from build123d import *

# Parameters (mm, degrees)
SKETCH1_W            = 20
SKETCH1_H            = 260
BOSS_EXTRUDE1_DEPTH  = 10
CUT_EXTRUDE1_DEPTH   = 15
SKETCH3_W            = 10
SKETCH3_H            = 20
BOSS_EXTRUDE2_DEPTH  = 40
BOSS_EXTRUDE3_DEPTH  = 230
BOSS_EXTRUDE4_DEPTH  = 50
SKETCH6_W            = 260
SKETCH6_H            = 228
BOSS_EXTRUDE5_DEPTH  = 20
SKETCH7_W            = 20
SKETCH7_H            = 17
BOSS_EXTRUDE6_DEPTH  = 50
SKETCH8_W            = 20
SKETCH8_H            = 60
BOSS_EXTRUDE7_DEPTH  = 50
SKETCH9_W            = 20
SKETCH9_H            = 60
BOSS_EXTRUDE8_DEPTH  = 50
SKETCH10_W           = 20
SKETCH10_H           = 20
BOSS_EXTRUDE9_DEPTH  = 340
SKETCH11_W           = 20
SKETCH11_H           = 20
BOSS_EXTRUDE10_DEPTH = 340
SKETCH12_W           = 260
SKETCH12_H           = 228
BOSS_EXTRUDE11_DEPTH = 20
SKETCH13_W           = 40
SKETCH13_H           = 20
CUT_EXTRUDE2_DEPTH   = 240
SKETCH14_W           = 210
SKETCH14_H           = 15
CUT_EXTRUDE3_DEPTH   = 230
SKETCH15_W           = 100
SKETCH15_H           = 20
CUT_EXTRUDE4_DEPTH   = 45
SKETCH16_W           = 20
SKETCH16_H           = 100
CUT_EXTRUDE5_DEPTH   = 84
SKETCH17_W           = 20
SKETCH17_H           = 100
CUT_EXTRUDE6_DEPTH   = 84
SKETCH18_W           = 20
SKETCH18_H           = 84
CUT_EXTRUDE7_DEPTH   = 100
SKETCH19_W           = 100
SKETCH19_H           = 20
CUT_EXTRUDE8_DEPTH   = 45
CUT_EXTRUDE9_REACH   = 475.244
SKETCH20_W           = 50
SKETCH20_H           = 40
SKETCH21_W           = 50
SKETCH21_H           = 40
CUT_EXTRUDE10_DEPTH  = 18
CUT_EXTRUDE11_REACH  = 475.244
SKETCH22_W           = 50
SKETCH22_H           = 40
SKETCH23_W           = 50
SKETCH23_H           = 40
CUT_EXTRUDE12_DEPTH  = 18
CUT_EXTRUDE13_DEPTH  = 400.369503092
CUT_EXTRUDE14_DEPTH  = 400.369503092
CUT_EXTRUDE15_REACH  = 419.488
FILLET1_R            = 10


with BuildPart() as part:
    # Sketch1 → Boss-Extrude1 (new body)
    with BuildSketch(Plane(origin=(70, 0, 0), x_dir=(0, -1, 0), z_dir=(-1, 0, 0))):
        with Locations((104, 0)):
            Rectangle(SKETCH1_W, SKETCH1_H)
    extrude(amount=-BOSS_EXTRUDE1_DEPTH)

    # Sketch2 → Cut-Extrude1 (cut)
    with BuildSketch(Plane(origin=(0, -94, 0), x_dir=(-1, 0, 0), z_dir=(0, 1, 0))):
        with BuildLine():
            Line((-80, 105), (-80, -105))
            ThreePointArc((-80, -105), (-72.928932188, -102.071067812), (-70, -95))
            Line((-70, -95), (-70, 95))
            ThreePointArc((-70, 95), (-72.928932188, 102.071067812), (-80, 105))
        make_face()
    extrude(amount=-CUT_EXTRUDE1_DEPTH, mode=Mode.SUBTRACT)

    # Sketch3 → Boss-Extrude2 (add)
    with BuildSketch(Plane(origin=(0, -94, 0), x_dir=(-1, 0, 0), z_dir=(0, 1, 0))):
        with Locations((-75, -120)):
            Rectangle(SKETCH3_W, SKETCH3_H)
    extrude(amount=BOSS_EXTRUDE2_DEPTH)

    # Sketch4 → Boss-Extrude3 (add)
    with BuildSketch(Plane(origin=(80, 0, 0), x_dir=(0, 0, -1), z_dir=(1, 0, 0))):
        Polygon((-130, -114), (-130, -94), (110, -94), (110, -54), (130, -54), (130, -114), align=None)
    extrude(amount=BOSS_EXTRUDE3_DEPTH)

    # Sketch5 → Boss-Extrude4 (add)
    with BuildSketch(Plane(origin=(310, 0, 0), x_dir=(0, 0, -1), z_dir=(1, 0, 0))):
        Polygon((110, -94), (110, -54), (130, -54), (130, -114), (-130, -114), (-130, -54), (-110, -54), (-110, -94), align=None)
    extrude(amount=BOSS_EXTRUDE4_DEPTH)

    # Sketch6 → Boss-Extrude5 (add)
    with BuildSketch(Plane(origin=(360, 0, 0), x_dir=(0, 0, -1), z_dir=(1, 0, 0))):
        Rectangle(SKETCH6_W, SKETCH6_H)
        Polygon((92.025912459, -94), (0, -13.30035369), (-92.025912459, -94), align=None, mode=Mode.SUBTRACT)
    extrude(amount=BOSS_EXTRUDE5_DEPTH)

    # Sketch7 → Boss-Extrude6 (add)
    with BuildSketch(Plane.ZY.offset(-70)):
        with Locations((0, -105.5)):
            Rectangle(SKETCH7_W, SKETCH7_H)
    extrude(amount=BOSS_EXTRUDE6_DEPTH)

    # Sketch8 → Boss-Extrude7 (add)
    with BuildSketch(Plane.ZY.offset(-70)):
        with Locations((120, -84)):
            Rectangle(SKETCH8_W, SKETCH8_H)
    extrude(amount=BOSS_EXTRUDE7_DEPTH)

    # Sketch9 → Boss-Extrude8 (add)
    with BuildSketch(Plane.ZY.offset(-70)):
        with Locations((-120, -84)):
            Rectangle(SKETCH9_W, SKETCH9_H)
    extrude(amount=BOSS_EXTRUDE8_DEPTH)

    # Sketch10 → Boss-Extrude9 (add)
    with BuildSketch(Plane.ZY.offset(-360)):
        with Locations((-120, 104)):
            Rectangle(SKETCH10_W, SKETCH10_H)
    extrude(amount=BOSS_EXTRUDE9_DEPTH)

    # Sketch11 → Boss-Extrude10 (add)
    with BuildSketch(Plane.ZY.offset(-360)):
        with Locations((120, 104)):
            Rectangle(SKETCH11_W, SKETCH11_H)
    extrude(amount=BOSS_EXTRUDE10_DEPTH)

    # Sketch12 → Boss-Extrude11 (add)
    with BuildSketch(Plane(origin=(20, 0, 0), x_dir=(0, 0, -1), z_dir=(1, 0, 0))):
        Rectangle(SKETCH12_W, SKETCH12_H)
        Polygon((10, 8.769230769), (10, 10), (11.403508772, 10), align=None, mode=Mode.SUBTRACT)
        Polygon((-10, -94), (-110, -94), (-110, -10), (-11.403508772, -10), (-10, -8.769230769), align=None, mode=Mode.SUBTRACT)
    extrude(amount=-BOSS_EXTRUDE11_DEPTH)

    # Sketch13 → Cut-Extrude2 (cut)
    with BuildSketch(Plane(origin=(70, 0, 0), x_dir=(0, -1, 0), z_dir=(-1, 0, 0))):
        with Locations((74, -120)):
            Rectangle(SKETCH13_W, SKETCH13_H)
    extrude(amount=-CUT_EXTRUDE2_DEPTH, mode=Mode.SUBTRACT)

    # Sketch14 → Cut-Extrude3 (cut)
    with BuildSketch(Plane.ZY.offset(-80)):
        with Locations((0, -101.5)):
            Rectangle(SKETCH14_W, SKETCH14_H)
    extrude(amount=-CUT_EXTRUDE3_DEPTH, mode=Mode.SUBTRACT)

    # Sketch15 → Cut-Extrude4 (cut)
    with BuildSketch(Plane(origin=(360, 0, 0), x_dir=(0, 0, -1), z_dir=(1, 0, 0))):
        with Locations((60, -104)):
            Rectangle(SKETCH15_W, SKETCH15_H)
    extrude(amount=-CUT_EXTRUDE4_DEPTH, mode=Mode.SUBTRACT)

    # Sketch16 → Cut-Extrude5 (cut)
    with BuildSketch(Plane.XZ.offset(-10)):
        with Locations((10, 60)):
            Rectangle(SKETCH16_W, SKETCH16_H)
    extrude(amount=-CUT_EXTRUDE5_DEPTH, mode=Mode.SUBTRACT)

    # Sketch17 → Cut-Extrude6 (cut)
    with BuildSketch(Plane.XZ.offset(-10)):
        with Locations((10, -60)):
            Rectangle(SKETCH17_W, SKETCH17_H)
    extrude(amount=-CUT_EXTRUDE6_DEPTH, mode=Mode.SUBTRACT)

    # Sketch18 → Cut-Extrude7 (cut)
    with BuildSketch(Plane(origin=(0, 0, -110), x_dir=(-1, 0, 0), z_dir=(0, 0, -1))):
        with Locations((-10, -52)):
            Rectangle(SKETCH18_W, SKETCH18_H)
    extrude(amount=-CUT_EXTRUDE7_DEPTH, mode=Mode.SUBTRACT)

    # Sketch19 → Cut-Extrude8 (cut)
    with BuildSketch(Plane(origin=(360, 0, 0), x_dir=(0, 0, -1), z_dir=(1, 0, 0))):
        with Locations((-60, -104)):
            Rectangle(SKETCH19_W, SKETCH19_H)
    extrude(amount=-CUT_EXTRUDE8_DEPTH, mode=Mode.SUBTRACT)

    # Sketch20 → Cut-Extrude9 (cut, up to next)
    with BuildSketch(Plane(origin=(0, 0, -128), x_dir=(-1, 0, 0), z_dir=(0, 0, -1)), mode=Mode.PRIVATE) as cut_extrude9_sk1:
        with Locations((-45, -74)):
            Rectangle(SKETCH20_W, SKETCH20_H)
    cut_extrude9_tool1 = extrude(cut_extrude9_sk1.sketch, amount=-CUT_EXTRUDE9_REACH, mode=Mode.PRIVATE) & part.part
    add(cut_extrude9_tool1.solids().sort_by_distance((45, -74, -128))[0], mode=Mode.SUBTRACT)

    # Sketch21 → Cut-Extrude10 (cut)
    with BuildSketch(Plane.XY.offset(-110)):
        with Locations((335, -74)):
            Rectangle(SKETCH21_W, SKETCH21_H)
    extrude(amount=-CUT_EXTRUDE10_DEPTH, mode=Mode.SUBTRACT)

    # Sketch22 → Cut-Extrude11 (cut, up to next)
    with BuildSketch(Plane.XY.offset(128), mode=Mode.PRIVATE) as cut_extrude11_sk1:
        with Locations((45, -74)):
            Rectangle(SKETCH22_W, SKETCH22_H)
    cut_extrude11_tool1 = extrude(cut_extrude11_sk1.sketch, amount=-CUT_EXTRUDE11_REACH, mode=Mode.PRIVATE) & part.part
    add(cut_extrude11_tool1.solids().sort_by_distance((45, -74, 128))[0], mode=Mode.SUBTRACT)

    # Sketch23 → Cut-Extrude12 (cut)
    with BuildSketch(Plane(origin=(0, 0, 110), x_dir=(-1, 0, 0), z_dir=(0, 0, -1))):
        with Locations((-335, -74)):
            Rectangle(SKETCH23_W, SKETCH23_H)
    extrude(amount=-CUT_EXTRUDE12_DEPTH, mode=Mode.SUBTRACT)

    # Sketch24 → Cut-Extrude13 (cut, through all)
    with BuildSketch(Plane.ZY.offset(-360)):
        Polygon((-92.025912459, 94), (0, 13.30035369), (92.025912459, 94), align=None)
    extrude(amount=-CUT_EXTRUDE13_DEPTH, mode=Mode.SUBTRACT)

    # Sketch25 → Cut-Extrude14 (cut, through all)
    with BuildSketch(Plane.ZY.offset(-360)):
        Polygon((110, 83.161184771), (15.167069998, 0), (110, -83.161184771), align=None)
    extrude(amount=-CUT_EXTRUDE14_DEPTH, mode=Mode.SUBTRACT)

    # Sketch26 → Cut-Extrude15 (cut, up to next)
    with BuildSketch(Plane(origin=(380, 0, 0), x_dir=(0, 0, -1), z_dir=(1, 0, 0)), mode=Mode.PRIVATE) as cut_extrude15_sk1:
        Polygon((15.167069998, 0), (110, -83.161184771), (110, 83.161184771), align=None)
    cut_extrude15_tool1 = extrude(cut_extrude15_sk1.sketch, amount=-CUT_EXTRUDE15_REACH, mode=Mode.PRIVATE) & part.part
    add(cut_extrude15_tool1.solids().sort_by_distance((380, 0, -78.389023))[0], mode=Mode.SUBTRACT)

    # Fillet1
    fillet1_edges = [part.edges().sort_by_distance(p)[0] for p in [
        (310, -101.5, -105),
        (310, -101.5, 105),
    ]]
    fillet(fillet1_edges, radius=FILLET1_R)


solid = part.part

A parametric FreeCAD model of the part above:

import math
import FreeCAD as App
import Part
import Sketcher

V = App.Vector


def edges_at(feature, points):
    """Names of the edges that pass closest to the given points."""
    edges = feature.Shape.Edges
    near = lambda p: min(range(len(edges)), key=lambda i: edges[i].distToShape(Part.Vertex(*p))[0])
    return sorted({f"Edge{near(p) + 1}" for p in points})


def add_polygon(sketch, points):
    """Adds a closed chain of lines whose ends are joined by coincident constraints."""
    first, n = sketch.GeometryCount, len(points)
    for a, b in zip(points, points[1:] + points[:1]):
        sketch.addGeometry(Part.LineSegment(App.Vector(*a, 0), App.Vector(*b, 0)), False)
    for i in range(n):
        sketch.addConstraint(Sketcher.Constraint("Coincident", first + i, 2, first + (i + 1) % n, 1))

doc = App.newDocument("Part")
body = doc.addObject("PartDesign::Body", "Body")

sketch1 = body.newObject("Sketcher::SketchObject", "Sketch")
sketch1.AttachmentSupport = (doc.getObject("YZ_Plane"), [""])
sketch1.MapMode = "FlatFace"
sketch1.AttachmentOffset = App.Placement(V(0, 0, 70), App.Rotation())
add_polygon(sketch1, [(-94, 130), (-94, -130), (-114, -130), (-114, 130)])
sketch1.addConstraint(Sketcher.Constraint("Vertical", 0))
sketch1.addConstraint(Sketcher.Constraint("Horizontal", 1))
sketch1.addConstraint(Sketcher.Constraint("Vertical", 2))
sketch1.addConstraint(Sketcher.Constraint("Horizontal", 3))
sketch1.addConstraint(Sketcher.Constraint("DistanceX", 1, 2, 1, 1, 20.0))
sketch1.addConstraint(Sketcher.Constraint("DistanceY", 0, 2, 0, 1, 260.0))
sketch1.addConstraint(Sketcher.Constraint("DistanceX", 0, 2, -1, 1, 94.0))
sketch1.addConstraint(Sketcher.Constraint("DistanceY", 0, 2, -1, 1, 130.0))
pad1 = body.newObject("PartDesign::Pad", "Pad")
pad1.Profile = sketch1
pad1.Length = 10

sketch2 = body.newObject("Sketcher::SketchObject", "Sketch001")
sketch2.AttachmentSupport = (doc.getObject("XZ_Plane"), [""])
sketch2.MapMode = "FlatFace"
sketch2.AttachmentOffset = App.Placement(V(0, 0, 94), App.Rotation())
sketch2.addGeometry(Part.LineSegment(V(80, 105, 0), V(80, -105, 0)), False)
sketch2.addGeometry(Part.ArcOfCircle(Part.Circle(V(80, -95, 0), V(0, 0, 1), 10), math.radians(180), math.radians(270)), False)
sketch2.addGeometry(Part.LineSegment(V(70, -95, 0), V(70, 95, 0)), False)
sketch2.addGeometry(Part.ArcOfCircle(Part.Circle(V(80, 95, 0), V(0, 0, 1), 10), math.radians(90), math.radians(180)), False)
sketch2.addConstraint(Sketcher.Constraint("Coincident", 0, 2, 1, 2))
sketch2.addConstraint(Sketcher.Constraint("Tangent", 1, 1, 2, 1))
sketch2.addConstraint(Sketcher.Constraint("Tangent", 2, 2, 3, 2))
sketch2.addConstraint(Sketcher.Constraint("Coincident", 3, 1, 0, 1))
sketch2.addConstraint(Sketcher.Constraint("Vertical", 0))
sketch2.addConstraint(Sketcher.Constraint("Vertical", 2))
sketch2.addConstraint(Sketcher.Constraint("Equal", 1, 3))
sketch2.addConstraint(Sketcher.Constraint("Vertical", 3, 3, 0, 2))
sketch2.addConstraint(Sketcher.Constraint("Radius", 1, 10.0))
sketch2.addConstraint(Sketcher.Constraint("DistanceY", 0, 2, 0, 1, 210.0))
sketch2.addConstraint(Sketcher.Constraint("DistanceX", -1, 1, 1, 3, 80.0))
sketch2.addConstraint(Sketcher.Constraint("DistanceY", 1, 3, -1, 1, 95.0))
pocket1 = body.newObject("PartDesign::Pocket", "Pocket")
pocket1.Profile = sketch2
pocket1.Length = 15
pocket1.Reversed = True

sketch3 = body.newObject("Sketcher::SketchObject", "Sketch002")
sketch3.AttachmentSupport = (doc.getObject("XZ_Plane"), [""])
sketch3.MapMode = "FlatFace"
sketch3.AttachmentOffset = App.Placement(V(0, 0, 94), App.Rotation())
add_polygon(sketch3, [(80, -110), (80, -130), (70, -130), (70, -110)])
sketch3.addConstraint(Sketcher.Constraint("Vertical", 0))
sketch3.addConstraint(Sketcher.Constraint("Horizontal", 1))
sketch3.addConstraint(Sketcher.Constraint("Vertical", 2))
sketch3.addConstraint(Sketcher.Constraint("Horizontal", 3))
sketch3.addConstraint(Sketcher.Constraint("DistanceX", 1, 2, 1, 1, 10.0))
sketch3.addConstraint(Sketcher.Constraint("DistanceY", 0, 2, 0, 1, 20.0))
sketch3.addConstraint(Sketcher.Constraint("DistanceX", -1, 1, 0, 2, 80.0))
sketch3.addConstraint(Sketcher.Constraint("DistanceY", 0, 2, -1, 1, 130.0))
pad2 = body.newObject("PartDesign::Pad", "Pad001")
pad2.Profile = sketch3
pad2.Length = 40
pad2.Reversed = True

sketch4 = body.newObject("Sketcher::SketchObject", "Sketch003")
sketch4.AttachmentSupport = (doc.getObject("YZ_Plane"), [""])
sketch4.MapMode = "FlatFace"
sketch4.AttachmentOffset = App.Placement(V(0, 0, 80), App.Rotation())
add_polygon(sketch4, [(-94, 130), (-114, 130), (-114, -130), (-54, -130), (-54, -110), (-94, -110)])
sketch4.addConstraint(Sketcher.Constraint("Horizontal", 0))
sketch4.addConstraint(Sketcher.Constraint("Vertical", 1))
sketch4.addConstraint(Sketcher.Constraint("Horizontal", 2))
sketch4.addConstraint(Sketcher.Constraint("Vertical", 3))
sketch4.addConstraint(Sketcher.Constraint("Horizontal", 4))
sketch4.addConstraint(Sketcher.Constraint("Vertical", 5))
sketch4.addConstraint(Sketcher.Constraint("Equal", 0, 3))
sketch4.addConstraint(Sketcher.Constraint("DistanceX", 0, 2, 0, 1, 20.0))
sketch4.addConstraint(Sketcher.Constraint("DistanceX", 2, 1, 2, 2, 60.0))
sketch4.addConstraint(Sketcher.Constraint("DistanceY", 1, 2, 1, 1, 260.0))
sketch4.addConstraint(Sketcher.Constraint("DistanceX", 0, 2, -1, 1, 114.0))
sketch4.addConstraint(Sketcher.Constraint("DistanceY", -1, 1, 0, 2, 130.0))
pad3 = body.newObject("PartDesign::Pad", "Pad002")
pad3.Profile = sketch4
pad3.Length = 230

sketch5 = body.newObject("Sketcher::SketchObject", "Sketch004")
sketch5.AttachmentSupport = (doc.getObject("YZ_Plane"), [""])
sketch5.MapMode = "FlatFace"
sketch5.AttachmentOffset = App.Placement(V(0, 0, 310), App.Rotation())
add_polygon(sketch5, [(-54, -110), (-94, -110), (-94, 110), (-54, 110), (-54, 130), (-114, 130), (-114, -130), (-54, -130)])
sketch5.addConstraint(Sketcher.Constraint("Horizontal", 0))
sketch5.addConstraint(Sketcher.Constraint("Vertical", 1))
sketch5.addConstraint(Sketcher.Constraint("Horizontal", 2))
sketch5.addConstraint(Sketcher.Constraint("Vertical", 3))
sketch5.addConstraint(Sketcher.Constraint("Horizontal", 4))
sketch5.addConstraint(Sketcher.Constraint("Vertical", 5))
sketch5.addConstraint(Sketcher.Constraint("Horizontal", 6))
sketch5.addConstraint(Sketcher.Constraint("Vertical", 7))
sketch5.addConstraint(Sketcher.Constraint("Symmetric", 3, 2, 6, 2, -1))
sketch5.addConstraint(Sketcher.Constraint("Equal", 3, 7))
sketch5.addConstraint(Sketcher.Constraint("DistanceX", 0, 2, 0, 1, 40.0))
sketch5.addConstraint(Sketcher.Constraint("DistanceX", 4, 2, 4, 1, 60.0))
sketch5.addConstraint(Sketcher.Constraint("DistanceY", 1, 1, 1, 2, 220.0))
sketch5.addConstraint(Sketcher.Constraint("DistanceY", 3, 1, 3, 2, 20.0))
sketch5.addConstraint(Sketcher.Constraint("DistanceX", 0, 2, -1, 1, 94.0))
pad4 = body.newObject("PartDesign::Pad", "Pad003")
pad4.Profile = sketch5
pad4.Length = 50

sketch6 = body.newObject("Sketcher::SketchObject", "Sketch005")
sketch6.AttachmentSupport = (doc.getObject("YZ_Plane"), [""])
sketch6.MapMode = "FlatFace"
sketch6.AttachmentOffset = App.Placement(V(0, 0, 360), App.Rotation())
add_polygon(sketch6, [(114, 130), (-114, 130), (-114, -130), (114, -130)])
add_polygon(sketch6, [(-13, 0), (-94, -92), (-94, 92)])
sketch6.addConstraint(Sketcher.Constraint("Horizontal", 0))
sketch6.addConstraint(Sketcher.Constraint("Vertical", 1))
sketch6.addConstraint(Sketcher.Constraint("Horizontal", 2))
sketch6.addConstraint(Sketcher.Constraint("Vertical", 3))
sketch6.addConstraint(Sketcher.Constraint("Vertical", 5))
sketch6.addConstraint(Sketcher.Constraint("Symmetric", 0, 2, 2, 2, -1, 1))
sketch6.addConstraint(Sketcher.Constraint("PointOnObject", 6, 2, -1))
sketch6.addConstraint(Sketcher.Constraint("Equal", 4, 6))
sketch6.addConstraint(Sketcher.Constraint("DistanceX", 0, 2, 0, 1, 228.0))
sketch6.addConstraint(Sketcher.Constraint("DistanceY", 1, 2, 1, 1, 260.0))
sketch6.addConstraint(Sketcher.Constraint("DistanceX", 4, 2, -1, 1, 94.0))
sketch6.addConstraint(Sketcher.Constraint("Distance", 4, 122.397718))
sketch6.addConstraint(Sketcher.Constraint("DistanceY", 5, 1, 5, 2, 184.051825))
pad5 = body.newObject("PartDesign::Pad", "Pad004")
pad5.Profile = sketch6
pad5.Length = 20

sketch7 = body.newObject("Sketcher::SketchObject", "Sketch006")
sketch7.AttachmentSupport = (doc.getObject("YZ_Plane"), [""])
sketch7.MapMode = "FlatFace"
sketch7.AttachmentOffset = App.Placement(V(0, 0, 70), App.Rotation())
add_polygon(sketch7, [(-97, -10), (-114, -10), (-114, 10), (-97, 10)])
sketch7.addConstraint(Sketcher.Constraint("Horizontal", 0))
sketch7.addConstraint(Sketcher.Constraint("Vertical", 1))
sketch7.addConstraint(Sketcher.Constraint("Horizontal", 2))
sketch7.addConstraint(Sketcher.Constraint("Vertical", 3))
sketch7.addConstraint(Sketcher.Constraint("DistanceX", 0, 2, 0, 1, 17.0))
sketch7.addConstraint(Sketcher.Constraint("DistanceY", 1, 1, 1, 2, 20.0))
sketch7.addConstraint(Sketcher.Constraint("DistanceX", 0, 2, -1, 1, 114.0))
sketch7.addConstraint(Sketcher.Constraint("DistanceY", 0, 2, -1, 1, 10.0))
pad6 = body.newObject("PartDesign::Pad", "Pad005")
pad6.Profile = sketch7
pad6.Length = 50
pad6.Reversed = True

sketch8 = body.newObject("Sketcher::SketchObject", "Sketch007")
sketch8.AttachmentSupport = (doc.getObject("YZ_Plane"), [""])
sketch8.MapMode = "FlatFace"
sketch8.AttachmentOffset = App.Placement(V(0, 0, 70), App.Rotation())
add_polygon(sketch8, [(-54, 110), (-114, 110), (-114, 130), (-54, 130)])
sketch8.addConstraint(Sketcher.Constraint("Horizontal", 0))
sketch8.addConstraint(Sketcher.Constraint("Vertical", 1))
sketch8.addConstraint(Sketcher.Constraint("Horizontal", 2))
sketch8.addConstraint(Sketcher.Constraint("Vertical", 3))
sketch8.addConstraint(Sketcher.Constraint("DistanceX", 0, 2, 0, 1, 60.0))
sketch8.addConstraint(Sketcher.Constraint("DistanceY", 1, 1, 1, 2, 20.0))
sketch8.addConstraint(Sketcher.Constraint("DistanceX", 0, 2, -1, 1, 114.0))
sketch8.addConstraint(Sketcher.Constraint("DistanceY", -1, 1, 0, 2, 110.0))
pad7 = body.newObject("PartDesign::Pad", "Pad006")
pad7.Profile = sketch8
pad7.Length = 50
pad7.Reversed = True

sketch9 = body.newObject("Sketcher::SketchObject", "Sketch008")
sketch9.AttachmentSupport = (doc.getObject("YZ_Plane"), [""])
sketch9.MapMode = "FlatFace"
sketch9.AttachmentOffset = App.Placement(V(0, 0, 70), App.Rotation())
add_polygon(sketch9, [(-54, -130), (-114, -130), (-114, -110), (-54, -110)])
sketch9.addConstraint(Sketcher.Constraint("Horizontal", 0))
sketch9.addConstraint(Sketcher.Constraint("Vertical", 1))
sketch9.addConstraint(Sketcher.Constraint("Horizontal", 2))
sketch9.addConstraint(Sketcher.Constraint("Vertical", 3))
sketch9.addConstraint(Sketcher.Constraint("DistanceX", 0, 2, 0, 1, 60.0))
sketch9.addConstraint(Sketcher.Constraint("DistanceY", 1, 1, 1, 2, 20.0))
sketch9.addConstraint(Sketcher.Constraint("DistanceX", 0, 2, -1, 1, 114.0))
sketch9.addConstraint(Sketcher.Constraint("DistanceY", 0, 2, -1, 1, 130.0))
pad8 = body.newObject("PartDesign::Pad", "Pad007")
pad8.Profile = sketch9
pad8.Length = 50
pad8.Reversed = True

sketch10 = body.newObject("Sketcher::SketchObject", "Sketch009")
sketch10.AttachmentSupport = (doc.getObject("YZ_Plane"), [""])
sketch10.MapMode = "FlatFace"
sketch10.AttachmentOffset = App.Placement(V(0, 0, 360), App.Rotation())
add_polygon(sketch10, [(114, -130), (94, -130), (94, -110), (114, -110)])
sketch10.addConstraint(Sketcher.Constraint("Horizontal", 0))
sketch10.addConstraint(Sketcher.Constraint("Vertical", 1))
sketch10.addConstraint(Sketcher.Constraint("Horizontal", 2))
sketch10.addConstraint(Sketcher.Constraint("Vertical", 3))
sketch10.addConstraint(Sketcher.Constraint("Equal", 2, 1))
sketch10.addConstraint(Sketcher.Constraint("DistanceX", 0, 2, 0, 1, 20.0))
sketch10.addConstraint(Sketcher.Constraint("DistanceX", -1, 1, 0, 2, 94.0))
sketch10.addConstraint(Sketcher.Constraint("DistanceY", 0, 2, -1, 1, 130.0))
pad9 = body.newObject("PartDesign::Pad", "Pad008")
pad9.Profile = sketch10
pad9.Length = 340
pad9.Reversed = True

sketch11 = body.newObject("Sketcher::SketchObject", "Sketch010")
sketch11.AttachmentSupport = (doc.getObject("YZ_Plane"), [""])
sketch11.MapMode = "FlatFace"
sketch11.AttachmentOffset = App.Placement(V(0, 0, 360), App.Rotation())
add_polygon(sketch11, [(114, 110), (94, 110), (94, 130), (114, 130)])
sketch11.addConstraint(Sketcher.Constraint("Horizontal", 0))
sketch11.addConstraint(Sketcher.Constraint("Vertical", 1))
sketch11.addConstraint(Sketcher.Constraint("Horizontal", 2))
sketch11.addConstraint(Sketcher.Constraint("Vertical", 3))
sketch11.addConstraint(Sketcher.Constraint("Equal", 2, 1))
sketch11.addConstraint(Sketcher.Constraint("DistanceX", 0, 2, 0, 1, 20.0))
sketch11.addConstraint(Sketcher.Constraint("DistanceX", -1, 1, 0, 2, 94.0))
sketch11.addConstraint(Sketcher.Constraint("DistanceY", -1, 1, 0, 2, 110.0))
pad10 = body.newObject("PartDesign::Pad", "Pad009")
pad10.Profile = sketch11
pad10.Length = 340
pad10.Reversed = True

sketch12 = body.newObject("Sketcher::SketchObject", "Sketch011")
sketch12.AttachmentSupport = (doc.getObject("YZ_Plane"), [""])
sketch12.MapMode = "FlatFace"
sketch12.AttachmentOffset = App.Placement(V(0, 0, 20), App.Rotation())
add_polygon(sketch12, [(114, 130), (-114, 130), (-114, -130), (114, -130)])
add_polygon(sketch12, [(-8.8, 10), (-94, 10), (-94, 110), (-10, 110), (-10, 11.4)])
add_polygon(sketch12, [(10, -11.4), (8.8, -10), (10, -10)])
sketch12.addConstraint(Sketcher.Constraint("Horizontal", 0))
sketch12.addConstraint(Sketcher.Constraint("Vertical", 1))
sketch12.addConstraint(Sketcher.Constraint("Horizontal", 2))
sketch12.addConstraint(Sketcher.Constraint("Vertical", 3))
sketch12.addConstraint(Sketcher.Constraint("Horizontal", 4))
sketch12.addConstraint(Sketcher.Constraint("Vertical", 5))
sketch12.addConstraint(Sketcher.Constraint("Horizontal", 6))
sketch12.addConstraint(Sketcher.Constraint("Vertical", 7))
sketch12.addConstraint(Sketcher.Constraint("Horizontal", 10))
sketch12.addConstraint(Sketcher.Constraint("Vertical", 11))
sketch12.addConstraint(Sketcher.Constraint("Symmetric", 0, 2, 2, 2, -1, 1))
sketch12.addConstraint(Sketcher.Constraint("Symmetric", 8, 2, 9, 2, -1, 1))
sketch12.addConstraint(Sketcher.Constraint("Symmetric", 7, 2, 11, 2, -1, 1))
sketch12.addConstraint(Sketcher.Constraint("DistanceX", 0, 2, 0, 1, 228.0))
sketch12.addConstraint(Sketcher.Constraint("DistanceX", 6, 1, 6, 2, 84.0))
sketch12.addConstraint(Sketcher.Constraint("DistanceY", 1, 2, 1, 1, 260.0))
sketch12.addConstraint(Sketcher.Constraint("DistanceY", 5, 1, 5, 2, 100.0))
sketch12.addConstraint(Sketcher.Constraint("DistanceX", 4, 2, -1, 1, 94.0))
sketch12.addConstraint(Sketcher.Constraint("DistanceY", -1, 1, 4, 2, 10.0))
sketch12.addConstraint(Sketcher.Constraint("DistanceX", 4, 2, 4, 1, 85.230769))
sketch12.addConstraint(Sketcher.Constraint("DistanceY", 7, 2, 7, 1, 98.596491))
pad11 = body.newObject("PartDesign::Pad", "Pad010")
pad11.Profile = sketch12
pad11.Length = 20
pad11.Reversed = True

sketch13 = body.newObject("Sketcher::SketchObject", "Sketch012")
sketch13.AttachmentSupport = (doc.getObject("YZ_Plane"), [""])
sketch13.MapMode = "FlatFace"
sketch13.AttachmentOffset = App.Placement(V(0, 0, 70), App.Rotation())
add_polygon(sketch13, [(-54, -110), (-54, -130), (-94, -130), (-94, -110)])
sketch13.addConstraint(Sketcher.Constraint("Vertical", 0))
sketch13.addConstraint(Sketcher.Constraint("Horizontal", 1))
sketch13.addConstraint(Sketcher.Constraint("Vertical", 2))
sketch13.addConstraint(Sketcher.Constraint("Horizontal", 3))
sketch13.addConstraint(Sketcher.Constraint("DistanceX", 1, 2, 1, 1, 40.0))
sketch13.addConstraint(Sketcher.Constraint("DistanceY", 0, 2, 0, 1, 20.0))
sketch13.addConstraint(Sketcher.Constraint("DistanceX", 0, 2, -1, 1, 54.0))
sketch13.addConstraint(Sketcher.Constraint("DistanceY", 0, 2, -1, 1, 130.0))
pocket2 = body.newObject("PartDesign::Pocket", "Pocket001")
pocket2.Profile = sketch13
pocket2.Length = 240
pocket2.Reversed = True

sketch14 = body.newObject("Sketcher::SketchObject", "Sketch013")
sketch14.AttachmentSupport = (doc.getObject("YZ_Plane"), [""])
sketch14.MapMode = "FlatFace"
sketch14.AttachmentOffset = App.Placement(V(0, 0, 80), App.Rotation())
add_polygon(sketch14, [(-94, -105), (-109, -105), (-109, 105), (-94, 105)])
sketch14.addConstraint(Sketcher.Constraint("Horizontal", 0))
sketch14.addConstraint(Sketcher.Constraint("Vertical", 1))
sketch14.addConstraint(Sketcher.Constraint("Horizontal", 2))
sketch14.addConstraint(Sketcher.Constraint("Vertical", 3))
sketch14.addConstraint(Sketcher.Constraint("DistanceX", 0, 2, 0, 1, 15.0))
sketch14.addConstraint(Sketcher.Constraint("DistanceY", 1, 1, 1, 2, 210.0))
sketch14.addConstraint(Sketcher.Constraint("DistanceX", 0, 2, -1, 1, 109.0))
sketch14.addConstraint(Sketcher.Constraint("DistanceY", 0, 2, -1, 1, 105.0))
pocket3 = body.newObject("PartDesign::Pocket", "Pocket002")
pocket3.Profile = sketch14
pocket3.Length = 230
pocket3.Reversed = True

sketch15 = body.newObject("Sketcher::SketchObject", "Sketch014")
sketch15.AttachmentSupport = (doc.getObject("YZ_Plane"), [""])
sketch15.MapMode = "FlatFace"
sketch15.AttachmentOffset = App.Placement(V(0, 0, 360), App.Rotation())
add_polygon(sketch15, [(-94, -10), (-114, -10), (-114, -110), (-94, -110)])
sketch15.addConstraint(Sketcher.Constraint("Horizontal", 0))
sketch15.addConstraint(Sketcher.Constraint("Vertical", 1))
sketch15.addConstraint(Sketcher.Constraint("Horizontal", 2))
sketch15.addConstraint(Sketcher.Constraint("Vertical", 3))
sketch15.addConstraint(Sketcher.Constraint("DistanceX", 0, 2, 0, 1, 20.0))
sketch15.addConstraint(Sketcher.Constraint("DistanceY", 1, 2, 1, 1, 100.0))
sketch15.addConstraint(Sketcher.Constraint("DistanceX", 0, 2, -1, 1, 114.0))
sketch15.addConstraint(Sketcher.Constraint("DistanceY", 0, 2, -1, 1, 10.0))
pocket4 = body.newObject("PartDesign::Pocket", "Pocket003")
pocket4.Profile = sketch15
pocket4.Length = 45

sketch16 = body.newObject("Sketcher::SketchObject", "Sketch015")
sketch16.AttachmentSupport = (doc.getObject("XZ_Plane"), [""])
sketch16.MapMode = "FlatFace"
sketch16.AttachmentOffset = App.Placement(V(0, 0, -10), App.Rotation())
add_polygon(sketch16, [(0, 110), (0, 10), (20, 10), (20, 110)])
sketch16.addConstraint(Sketcher.Constraint("Vertical", 0))
sketch16.addConstraint(Sketcher.Constraint("Horizontal", 1))
sketch16.addConstraint(Sketcher.Constraint("Vertical", 2))
sketch16.addConstraint(Sketcher.Constraint("Horizontal", 3))
sketch16.addConstraint(Sketcher.Constraint("PointOnObject", 0, 2, -2))
sketch16.addConstraint(Sketcher.Constraint("DistanceX", 1, 1, 1, 2, 20.0))
sketch16.addConstraint(Sketcher.Constraint("DistanceY", 0, 2, 0, 1, 100.0))
sketch16.addConstraint(Sketcher.Constraint("DistanceY", -1, 1, 0, 2, 10.0))
pocket5 = body.newObject("PartDesign::Pocket", "Pocket004")
pocket5.Profile = sketch16
pocket5.Length = 84

sketch17 = body.newObject("Sketcher::SketchObject", "Sketch016")
sketch17.AttachmentSupport = (doc.getObject("XZ_Plane"), [""])
sketch17.MapMode = "FlatFace"
sketch17.AttachmentOffset = App.Placement(V(0, 0, -10), App.Rotation())
add_polygon(sketch17, [(0, -10), (0, -110), (20, -110), (20, -10)])
sketch17.addConstraint(Sketcher.Constraint("Vertical", 0))
sketch17.addConstraint(Sketcher.Constraint("Horizontal", 1))
sketch17.addConstraint(Sketcher.Constraint("Vertical", 2))
sketch17.addConstraint(Sketcher.Constraint("Horizontal", 3))
sketch17.addConstraint(Sketcher.Constraint("PointOnObject", 0, 2, -2))
sketch17.addConstraint(Sketcher.Constraint("DistanceX", 1, 1, 1, 2, 20.0))
sketch17.addConstraint(Sketcher.Constraint("DistanceY", 0, 2, 0, 1, 100.0))
sketch17.addConstraint(Sketcher.Constraint("DistanceY", 0, 2, -1, 1, 110.0))
pocket6 = body.newObject("PartDesign::Pocket", "Pocket005")
pocket6.Profile = sketch17
pocket6.Length = 84

sketch18 = body.newObject("Sketcher::SketchObject", "Sketch017")
sketch18.AttachmentSupport = (doc.getObject("XY_Plane"), [""])
sketch18.MapMode = "FlatFace"
sketch18.AttachmentOffset = App.Placement(V(0, 0, -110), App.Rotation())
add_polygon(sketch18, [(20, -10), (20, -94), (0, -94), (0, -10)])
sketch18.addConstraint(Sketcher.Constraint("Vertical", 0))
sketch18.addConstraint(Sketcher.Constraint("Horizontal", 1))
sketch18.addConstraint(Sketcher.Constraint("Vertical", 2))
sketch18.addConstraint(Sketcher.Constraint("Horizontal", 3))
sketch18.addConstraint(Sketcher.Constraint("PointOnObject", 1, 2, -2))
sketch18.addConstraint(Sketcher.Constraint("DistanceX", 1, 2, 1, 1, 20.0))
sketch18.addConstraint(Sketcher.Constraint("DistanceY", 0, 2, 0, 1, 84.0))
sketch18.addConstraint(Sketcher.Constraint("DistanceY", 0, 2, -1, 1, 94.0))
pocket7 = body.newObject("PartDesign::Pocket", "Pocket006")
pocket7.Profile = sketch18
pocket7.Length = 100
pocket7.Reversed = True

sketch19 = body.newObject("Sketcher::SketchObject", "Sketch018")
sketch19.AttachmentSupport = (doc.getObject("YZ_Plane"), [""])
sketch19.MapMode = "FlatFace"
sketch19.AttachmentOffset = App.Placement(V(0, 0, 360), App.Rotation())
add_polygon(sketch19, [(-94, 110), (-114, 110), (-114, 10), (-94, 10)])
sketch19.addConstraint(Sketcher.Constraint("Horizontal", 0))
sketch19.addConstraint(Sketcher.Constraint("Vertical", 1))
sketch19.addConstraint(Sketcher.Constraint("Horizontal", 2))
sketch19.addConstraint(Sketcher.Constraint("Vertical", 3))
sketch19.addConstraint(Sketcher.Constraint("DistanceX", 0, 2, 0, 1, 20.0))
sketch19.addConstraint(Sketcher.Constraint("DistanceY", 1, 2, 1, 1, 100.0))
sketch19.addConstraint(Sketcher.Constraint("DistanceX", 0, 2, -1, 1, 114.0))
sketch19.addConstraint(Sketcher.Constraint("DistanceY", -1, 1, 0, 2, 110.0))
pocket8 = body.newObject("PartDesign::Pocket", "Pocket007")
pocket8.Profile = sketch19
pocket8.Length = 45

sketch20 = body.newObject("Sketcher::SketchObject", "Sketch019")
sketch20.AttachmentSupport = (doc.getObject("XY_Plane"), [""])
sketch20.MapMode = "FlatFace"
sketch20.AttachmentOffset = App.Placement(V(0, 0, -128), App.Rotation())
add_polygon(sketch20, [(70, -54), (70, -94), (20, -94), (20, -54)])
sketch20.addConstraint(Sketcher.Constraint("Vertical", 0))
sketch20.addConstraint(Sketcher.Constraint("Horizontal", 1))
sketch20.addConstraint(Sketcher.Constraint("Vertical", 2))
sketch20.addConstraint(Sketcher.Constraint("Horizontal", 3))
sketch20.addConstraint(Sketcher.Constraint("DistanceX", 1, 2, 1, 1, 50.0))
sketch20.addConstraint(Sketcher.Constraint("DistanceY", 0, 2, 0, 1, 40.0))
sketch20.addConstraint(Sketcher.Constraint("DistanceX", -1, 1, 0, 2, 70.0))
sketch20.addConstraint(Sketcher.Constraint("DistanceY", 0, 2, -1, 1, 94.0))
pocket9 = body.newObject("PartDesign::Pocket", "Pocket008")
pocket9.Profile = sketch20
pocket9.Type = "UpToFirst"
pocket9.Reversed = True

sketch21 = body.newObject("Sketcher::SketchObject", "Sketch020")
sketch21.AttachmentSupport = (doc.getObject("XY_Plane"), [""])
sketch21.MapMode = "FlatFace"
sketch21.AttachmentOffset = App.Placement(V(0, 0, -110), App.Rotation())
add_polygon(sketch21, [(310, -54), (310, -94), (360, -94), (360, -54)])
sketch21.addConstraint(Sketcher.Constraint("Vertical", 0))
sketch21.addConstraint(Sketcher.Constraint("Horizontal", 1))
sketch21.addConstraint(Sketcher.Constraint("Vertical", 2))
sketch21.addConstraint(Sketcher.Constraint("Horizontal", 3))
sketch21.addConstraint(Sketcher.Constraint("DistanceX", 1, 1, 1, 2, 50.0))
sketch21.addConstraint(Sketcher.Constraint("DistanceY", 0, 2, 0, 1, 40.0))
sketch21.addConstraint(Sketcher.Constraint("DistanceX", -1, 1, 0, 2, 310.0))
sketch21.addConstraint(Sketcher.Constraint("DistanceY", 0, 2, -1, 1, 94.0))
pocket10 = body.newObject("PartDesign::Pocket", "Pocket009")
pocket10.Profile = sketch21
pocket10.Length = 18

sketch22 = body.newObject("Sketcher::SketchObject", "Sketch021")
sketch22.AttachmentSupport = (doc.getObject("XY_Plane"), [""])
sketch22.MapMode = "FlatFace"
sketch22.AttachmentOffset = App.Placement(V(0, 0, 128), App.Rotation())
add_polygon(sketch22, [(20, -54), (20, -94), (70, -94), (70, -54)])
sketch22.addConstraint(Sketcher.Constraint("Vertical", 0))
sketch22.addConstraint(Sketcher.Constraint("Horizontal", 1))
sketch22.addConstraint(Sketcher.Constraint("Vertical", 2))
sketch22.addConstraint(Sketcher.Constraint("Horizontal", 3))
sketch22.addConstraint(Sketcher.Constraint("DistanceX", 1, 1, 1, 2, 50.0))
sketch22.addConstraint(Sketcher.Constraint("DistanceY", 0, 2, 0, 1, 40.0))
sketch22.addConstraint(Sketcher.Constraint("DistanceX", -1, 1, 0, 2, 20.0))
sketch22.addConstraint(Sketcher.Constraint("DistanceY", 0, 2, -1, 1, 94.0))
pocket11 = body.newObject("PartDesign::Pocket", "Pocket010")
pocket11.Profile = sketch22
pocket11.Type = "UpToFirst"

sketch23 = body.newObject("Sketcher::SketchObject", "Sketch022")
sketch23.AttachmentSupport = (doc.getObject("XY_Plane"), [""])
sketch23.MapMode = "FlatFace"
sketch23.AttachmentOffset = App.Placement(V(0, 0, 110), App.Rotation())
add_polygon(sketch23, [(360, -54), (360, -94), (310, -94), (310, -54)])
sketch23.addConstraint(Sketcher.Constraint("Vertical", 0))
sketch23.addConstraint(Sketcher.Constraint("Horizontal", 1))
sketch23.addConstraint(Sketcher.Constraint("Vertical", 2))
sketch23.addConstraint(Sketcher.Constraint("Horizontal", 3))
sketch23.addConstraint(Sketcher.Constraint("DistanceX", 1, 2, 1, 1, 50.0))
sketch23.addConstraint(Sketcher.Constraint("DistanceY", 0, 2, 0, 1, 40.0))
sketch23.addConstraint(Sketcher.Constraint("DistanceX", -1, 1, 0, 2, 360.0))
sketch23.addConstraint(Sketcher.Constraint("DistanceY", 0, 2, -1, 1, 94.0))
pocket12 = body.newObject("PartDesign::Pocket", "Pocket011")
pocket12.Profile = sketch23
pocket12.Length = 18
pocket12.Reversed = True

sketch24 = body.newObject("Sketcher::SketchObject", "Sketch023")
sketch24.AttachmentSupport = (doc.getObject("YZ_Plane"), [""])
sketch24.MapMode = "FlatFace"
sketch24.AttachmentOffset = App.Placement(V(0, 0, 360), App.Rotation())
add_polygon(sketch24, [(94, -92), (13, 0), (94, 92)])
sketch24.addConstraint(Sketcher.Constraint("Vertical", 2))
sketch24.addConstraint(Sketcher.Constraint("PointOnObject", 0, 2, -1))
sketch24.addConstraint(Sketcher.Constraint("Equal", 0, 1))
sketch24.addConstraint(Sketcher.Constraint("DistanceX", -1, 1, 1, 2, 94.0))
sketch24.addConstraint(Sketcher.Constraint("Distance", 0, 122.397718))
sketch24.addConstraint(Sketcher.Constraint("DistanceY", 2, 2, 2, 1, 184.051825))
pocket13 = body.newObject("PartDesign::Pocket", "Pocket012")
pocket13.Profile = sketch24
pocket13.Type = "ThroughAll"
pocket13.Reversed = True

sketch25 = body.newObject("Sketcher::SketchObject", "Sketch024")
sketch25.AttachmentSupport = (doc.getObject("YZ_Plane"), [""])
sketch25.MapMode = "FlatFace"
sketch25.AttachmentOffset = App.Placement(V(0, 0, 360), App.Rotation())
add_polygon(sketch25, [(83, 110), (0, 15), (-83, 110)])
sketch25.addConstraint(Sketcher.Constraint("Horizontal", 2))
sketch25.addConstraint(Sketcher.Constraint("PointOnObject", 0, 2, -2))
sketch25.addConstraint(Sketcher.Constraint("Equal", 0, 1))
sketch25.addConstraint(Sketcher.Constraint("DistanceY", -1, 1, 1, 2, 110.0))
sketch25.addConstraint(Sketcher.Constraint("DistanceX", 2, 1, 2, 2, 166.32237))
sketch25.addConstraint(Sketcher.Constraint("Distance", 0, 126.131151))
pocket14 = body.newObject("PartDesign::Pocket", "Pocket013")
pocket14.Profile = sketch25
pocket14.Type = "ThroughAll"
pocket14.Reversed = True

sketch26 = body.newObject("Sketcher::SketchObject", "Sketch025")
sketch26.AttachmentSupport = (doc.getObject("YZ_Plane"), [""])
sketch26.MapMode = "FlatFace"
sketch26.AttachmentOffset = App.Placement(V(0, 0, 380), App.Rotation())
add_polygon(sketch26, [(0, -15), (-83, -110), (83, -110)])
sketch26.addConstraint(Sketcher.Constraint("Horizontal", 1))
sketch26.addConstraint(Sketcher.Constraint("PointOnObject", 2, 2, -2))
sketch26.addConstraint(Sketcher.Constraint("Equal", 0, 2))
sketch26.addConstraint(Sketcher.Constraint("DistanceY", 0, 2, -1, 1, 110.0))
sketch26.addConstraint(Sketcher.Constraint("DistanceX", 1, 1, 1, 2, 166.32237))
sketch26.addConstraint(Sketcher.Constraint("Distance", 0, 126.131151))
pocket15 = body.newObject("PartDesign::Pocket", "Pocket014")
pocket15.Profile = sketch26
pocket15.Type = "UpToFirst"
doc.recompute()

fillet = body.newObject("PartDesign::Fillet", "Fillet")
fillet.Base = (pocket15, edges_at(pocket15, [(310, -101.5, -105), (310, -101.5, 105)]))
fillet.Radius = 10

doc.recompute()
